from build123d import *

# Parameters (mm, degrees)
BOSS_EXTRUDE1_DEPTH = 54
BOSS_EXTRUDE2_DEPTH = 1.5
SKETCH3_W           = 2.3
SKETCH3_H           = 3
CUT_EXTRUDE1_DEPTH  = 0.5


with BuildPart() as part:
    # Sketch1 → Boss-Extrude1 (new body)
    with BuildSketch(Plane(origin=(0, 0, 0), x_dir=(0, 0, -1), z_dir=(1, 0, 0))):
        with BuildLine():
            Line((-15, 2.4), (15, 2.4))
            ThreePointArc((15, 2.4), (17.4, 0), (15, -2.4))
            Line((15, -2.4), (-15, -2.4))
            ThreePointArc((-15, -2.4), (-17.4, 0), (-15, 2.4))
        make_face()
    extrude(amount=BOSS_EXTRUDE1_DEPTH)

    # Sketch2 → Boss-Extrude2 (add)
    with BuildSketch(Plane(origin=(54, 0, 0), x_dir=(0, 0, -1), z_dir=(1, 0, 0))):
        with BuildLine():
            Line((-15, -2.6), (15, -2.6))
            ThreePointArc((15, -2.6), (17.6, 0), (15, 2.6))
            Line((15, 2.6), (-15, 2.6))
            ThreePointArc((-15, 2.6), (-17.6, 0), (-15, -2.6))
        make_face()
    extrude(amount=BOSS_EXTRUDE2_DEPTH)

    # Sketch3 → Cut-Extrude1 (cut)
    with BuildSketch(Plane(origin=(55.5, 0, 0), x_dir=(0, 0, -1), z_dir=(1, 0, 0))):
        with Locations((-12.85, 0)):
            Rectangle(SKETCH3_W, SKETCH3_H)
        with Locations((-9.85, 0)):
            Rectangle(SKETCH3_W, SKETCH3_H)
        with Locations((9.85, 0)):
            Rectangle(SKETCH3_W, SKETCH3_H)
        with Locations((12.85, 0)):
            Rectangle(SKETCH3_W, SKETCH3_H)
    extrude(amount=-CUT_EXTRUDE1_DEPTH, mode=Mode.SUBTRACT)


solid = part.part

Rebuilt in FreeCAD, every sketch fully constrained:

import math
import FreeCAD as App
import Part
import Sketcher
Q = App.Units.Quantity


def add_polygon(sketch, points):
    """Adds a closed chain of lines whose ends are joined by coincident constraints."""
    first, n = sketch.GeometryCount, len(points)
    for a, b in zip(points, points[1:] + points[:1]):
        sketch.addGeometry(Part.LineSegment(App.Vector(*a, 0), App.Vector(*b, 0)), False)
    for i in range(n):
        sketch.addConstraint(Sketcher.Constraint("Coincident", first + i, 2, first + (i + 1) % n, 1))

doc = App.newDocument("Part")
params = doc.addObject("Spreadsheet::Sheet", "Params")
for row, (alias, value) in enumerate([
    ("sketch1_radius", "2.4 mm"),
    ("sketch1_height", "30 mm"),
    ("pad1_length", "54 mm"),
    ("sketch2_radius", "2.6 mm"),
    ("sketch2_height", "30 mm"),
    ("pad2_length", "1.5 mm"),
    ("sketch3_width", "3 mm"),
    ("sketch3_height", "2.3 mm"),
    ("pocket1_length", "0.5 mm"),
], start=1):
    params.set(f"A{row}", alias)
    params.set(f"B{row}", "=" + value)
    params.setAlias(f"B{row}", alias)

body = doc.addObject("PartDesign::Body", "Body")

sketch1 = doc.addObject("Sketcher::SketchObject", "Sketch")
body.addObject(sketch1)
sketch1.AttachmentSupport = (doc.YZ_Plane, [""])
sketch1.MapMode = "FlatFace"
sketch1.addGeometry([
    Part.LineSegment(App.Vector(2.4, -15, 0), App.Vector(2.4, 15, 0)),
    Part.ArcOfCircle(Part.Circle(App.Vector(0, 15, 0), App.Vector(0, 0, 1), 2.4), math.radians(0), math.radians(180)),
    Part.LineSegment(App.Vector(-2.4, 15, 0), App.Vector(-2.4, -15, 0)),
    Part.ArcOfCircle(Part.Circle(App.Vector(0, -15, 0), App.Vector(0, 0, 1), 2.4), math.radians(180), math.radians(360)),
], False)
sketch1.addConstraint([
    Sketcher.Constraint("Tangent", 0, 2, 1, 1),
    Sketcher.Constraint("Tangent", 1, 2, 2, 1),
    Sketcher.Constraint("Tangent", 2, 2, 3, 1),
    Sketcher.Constraint("Tangent", 3, 2, 0, 1),
    Sketcher.Constraint("Vertical", 0),
    Sketcher.Constraint("Vertical", 2),
    Sketcher.Constraint("Symmetric", 1, 3, 3, 3, -1, 1),
    Sketcher.Constraint("Radius", 1, Q("2.4 mm")),
    Sketcher.Constraint("DistanceY", 0, 1, 0, 2, Q("30 mm")),
])
sketch1.setExpression("Constraints[7]", "Params.sketch1_radius")
sketch1.setExpression("Constraints[8]", "Params.sketch1_height")
pad1 = doc.addObject("PartDesign::Pad", "Pad")
body.addObject(pad1)
pad1.Profile = sketch1
pad1.setExpression("Length", "Params.pad1_length")

sketch2 = doc.addObject("Sketcher::SketchObject", "Sketch001")
body.addObject(sketch2)
sketch2.AttachmentSupport = (doc.YZ_Plane, [""])
sketch2.MapMode = "FlatFace"
sketch2.AttachmentOffset = App.Placement(App.Vector(0, 0, 54), App.Rotation())
sketch2.addGeometry([
    Part.LineSegment(App.Vector(-2.6, 15, 0), App.Vector(-2.6, -15, 0)),
    Part.ArcOfCircle(Part.Circle(App.Vector(0, -15, 0), App.Vector(0, 0, 1), 2.6), math.radians(180), math.radians(360)),
    Part.LineSegment(App.Vector(2.6, -15, 0), App.Vector(2.6, 15, 0)),
    Part.ArcOfCircle(Part.Circle(App.Vector(0, 15, 0), App.Vector(0, 0, 1), 2.6), math.radians(0), math.radians(180)),
], False)
sketch2.addConstraint([
    Sketcher.Constraint("Tangent", 0, 2, 1, 1),
    Sketcher.Constraint("Tangent", 1, 2, 2, 1),
    Sketcher.Constraint("Tangent", 2, 2, 3, 1),
    Sketcher.Constraint("Tangent", 3, 2, 0, 1),
    Sketcher.Constraint("Vertical", 0),
    Sketcher.Constraint("Vertical", 2),
    Sketcher.Constraint("Symmetric", 1, 3, 3, 3, -1, 1),
    Sketcher.Constraint("Radius", 1, Q("2.6 mm")),
    Sketcher.Constraint("DistanceY", 0, 2, 0, 1, Q("30 mm")),
])
sketch2.setExpression("Constraints[7]", "Params.sketch2_radius")
sketch2.setExpression("Constraints[8]", "Params.sketch2_height")
pad2 = doc.addObject("PartDesign::Pad", "Pad001")
body.addObject(pad2)
pad2.Profile = sketch2
pad2.setExpression("Length", "Params.pad2_length")

sketch3 = doc.addObject("Sketcher::SketchObject", "Sketch002")
body.addObject(sketch3)
sketch3.AttachmentSupport = (doc.YZ_Plane, [""])
sketch3.MapMode = "FlatFace"
sketch3.AttachmentOffset = App.Placement(App.Vector(0, 0, 55.5), App.Rotation())
add_polygon(sketch3, [(1.5, 14), (-1.5, 14), (-1.5, 11.7), (1.5, 11.7)])
add_polygon(sketch3, [(1.5, 11), (-1.5, 11), (-1.5, 8.7), (1.5, 8.7)])
add_polygon(sketch3, [(1.5, -8.7), (-1.5, -8.7), (-1.5, -11), (1.5, -11)])
add_polygon(sketch3, [(1.5, -11.7), (-1.5, -11.7), (-1.5, -14), (1.5, -14)])
sketch3.addConstraint([
    Sketcher.Constraint("Horizontal", 0),
    Sketcher.Constraint("Vertical", 1),
    Sketcher.Constraint("Horizontal", 2),
    Sketcher.Constraint("Vertical", 3),
    Sketcher.Constraint("Horizontal", 4),
    Sketcher.Constraint("Vertical", 5),
    Sketcher.Constraint("Horizontal", 6),
    Sketcher.Constraint("Vertical", 7),
    Sketcher.Constraint("Horizontal", 8),
    Sketcher.Constraint("Vertical", 9),
    Sketcher.Constraint("Horizontal", 10),
    Sketcher.Constraint("Vertical", 11),
    Sketcher.Constraint("Horizontal", 12),
    Sketcher.Constraint("Vertical", 13),
    Sketcher.Constraint("Horizontal", 14),
    Sketcher.Constraint("Vertical", 15),
    Sketcher.Constraint("Symmetric", 6, 2, 8, 2, -1, 1),
    Sketcher.Constraint("Symmetric", 4, 2, 10, 2, -1, 1),
    Sketcher.Constraint("Symmetric", 2, 2, 12, 2, -1, 1),
    Sketcher.Constraint("Symmetric", 0, 2, 14, 2, -1, 1),
    Sketcher.Constraint("Vertical", 1, 2, 4, 2),
    Sketcher.Constraint("Vertical", 3, 2, 6, 2),
    Sketcher.Constraint("Vertical", 5, 2, 8, 2),
    Sketcher.Constraint("Equal", 3, 5),
    Sketcher.Constraint("DistanceX", 0, 2, 0, 1, Q("3 mm")),
    Sketcher.Constraint("DistanceY", 1, 2, 1, 1, Q("2.3 mm")),
    Sketcher.Constraint("DistanceY", -1, 1, 0, 2, Q("14 mm")),
    Sketcher.Constraint("DistanceY", -1, 1, 4, 2, Q("11 mm")),
])
sketch3.setExpression("Constraints[40]", "Params.sketch3_width")
sketch3.setExpression("Constraints[41]", "Params.sketch3_height")
pocket1 = doc.addObject("PartDesign::Pocket", "Pocket")
body.addObject(pocket1)
pocket1.Profile = sketch3
pocket1.setExpression("Length", "Params.pocket1_length")

doc.recompute()
